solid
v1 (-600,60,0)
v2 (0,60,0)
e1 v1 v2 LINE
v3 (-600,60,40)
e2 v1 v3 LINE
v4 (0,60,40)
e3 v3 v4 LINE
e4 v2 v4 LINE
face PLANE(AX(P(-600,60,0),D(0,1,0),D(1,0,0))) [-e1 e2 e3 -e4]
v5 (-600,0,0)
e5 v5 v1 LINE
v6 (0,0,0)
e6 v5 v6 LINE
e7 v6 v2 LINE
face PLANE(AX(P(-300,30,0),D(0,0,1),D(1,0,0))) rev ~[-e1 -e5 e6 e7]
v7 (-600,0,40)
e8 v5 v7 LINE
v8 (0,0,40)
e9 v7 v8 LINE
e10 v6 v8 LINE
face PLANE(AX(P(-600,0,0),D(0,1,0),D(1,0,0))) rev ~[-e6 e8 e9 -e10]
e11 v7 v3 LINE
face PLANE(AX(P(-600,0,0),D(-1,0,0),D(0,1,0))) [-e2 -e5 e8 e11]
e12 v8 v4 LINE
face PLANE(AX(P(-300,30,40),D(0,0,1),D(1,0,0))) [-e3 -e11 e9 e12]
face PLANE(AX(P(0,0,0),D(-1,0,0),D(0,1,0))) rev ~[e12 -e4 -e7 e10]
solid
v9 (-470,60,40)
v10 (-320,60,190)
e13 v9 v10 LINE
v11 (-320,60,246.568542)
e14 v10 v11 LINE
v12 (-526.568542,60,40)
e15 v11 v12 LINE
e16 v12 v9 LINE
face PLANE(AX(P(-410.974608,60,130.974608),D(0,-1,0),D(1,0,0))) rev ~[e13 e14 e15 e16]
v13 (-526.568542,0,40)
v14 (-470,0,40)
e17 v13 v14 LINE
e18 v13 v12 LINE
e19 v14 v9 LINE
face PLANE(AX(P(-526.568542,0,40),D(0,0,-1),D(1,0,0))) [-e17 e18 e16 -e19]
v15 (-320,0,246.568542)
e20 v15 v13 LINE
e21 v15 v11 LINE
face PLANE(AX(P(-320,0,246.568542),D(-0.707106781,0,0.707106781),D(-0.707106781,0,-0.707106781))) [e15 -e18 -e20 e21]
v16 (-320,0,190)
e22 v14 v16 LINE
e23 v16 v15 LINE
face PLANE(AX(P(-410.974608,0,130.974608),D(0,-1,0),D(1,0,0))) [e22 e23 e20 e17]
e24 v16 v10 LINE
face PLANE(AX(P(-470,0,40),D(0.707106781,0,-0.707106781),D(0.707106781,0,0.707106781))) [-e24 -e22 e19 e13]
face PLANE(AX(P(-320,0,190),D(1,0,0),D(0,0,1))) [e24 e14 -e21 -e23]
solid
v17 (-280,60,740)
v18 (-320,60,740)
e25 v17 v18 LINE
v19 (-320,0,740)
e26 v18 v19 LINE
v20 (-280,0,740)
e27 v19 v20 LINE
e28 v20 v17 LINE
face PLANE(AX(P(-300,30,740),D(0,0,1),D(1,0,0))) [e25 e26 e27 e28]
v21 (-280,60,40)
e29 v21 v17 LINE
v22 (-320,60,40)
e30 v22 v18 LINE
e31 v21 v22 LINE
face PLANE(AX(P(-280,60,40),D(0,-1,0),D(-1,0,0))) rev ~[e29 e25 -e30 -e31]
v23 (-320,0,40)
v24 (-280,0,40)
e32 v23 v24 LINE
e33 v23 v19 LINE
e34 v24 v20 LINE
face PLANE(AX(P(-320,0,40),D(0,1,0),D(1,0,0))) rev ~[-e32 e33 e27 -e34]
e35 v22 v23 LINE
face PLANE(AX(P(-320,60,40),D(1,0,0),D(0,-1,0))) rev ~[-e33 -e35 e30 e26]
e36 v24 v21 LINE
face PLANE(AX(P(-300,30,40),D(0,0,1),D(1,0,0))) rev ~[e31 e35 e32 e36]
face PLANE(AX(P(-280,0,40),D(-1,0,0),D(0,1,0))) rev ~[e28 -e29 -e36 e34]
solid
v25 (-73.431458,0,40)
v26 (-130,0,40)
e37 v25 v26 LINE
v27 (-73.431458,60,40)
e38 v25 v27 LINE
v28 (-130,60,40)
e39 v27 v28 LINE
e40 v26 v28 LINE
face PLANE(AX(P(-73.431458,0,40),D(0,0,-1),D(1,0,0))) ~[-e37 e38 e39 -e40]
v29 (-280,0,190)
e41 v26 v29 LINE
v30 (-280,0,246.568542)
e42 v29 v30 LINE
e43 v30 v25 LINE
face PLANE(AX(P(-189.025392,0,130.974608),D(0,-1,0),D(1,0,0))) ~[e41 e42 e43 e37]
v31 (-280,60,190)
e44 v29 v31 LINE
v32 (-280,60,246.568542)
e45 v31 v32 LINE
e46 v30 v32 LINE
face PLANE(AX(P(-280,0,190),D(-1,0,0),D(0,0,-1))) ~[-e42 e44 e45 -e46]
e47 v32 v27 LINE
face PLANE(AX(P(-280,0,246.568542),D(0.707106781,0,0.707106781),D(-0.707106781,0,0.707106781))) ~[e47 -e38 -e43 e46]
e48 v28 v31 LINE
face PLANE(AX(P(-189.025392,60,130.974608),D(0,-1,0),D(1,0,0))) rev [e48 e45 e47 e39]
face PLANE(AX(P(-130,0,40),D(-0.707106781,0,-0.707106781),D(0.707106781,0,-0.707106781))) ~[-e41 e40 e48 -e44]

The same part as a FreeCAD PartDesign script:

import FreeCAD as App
import Part
import Sketcher
from FreeCAD import Vector

doc = App.newDocument("Part")
body = doc.addObject("PartDesign::Body", "Body")

# Sketch on XY plane
sketch1 = doc.addObject("Sketcher::SketchObject", "Sketch")
body.addObject(sketch1)
sketch1.AttachmentSupport = (doc.XY_Plane, [""])
sketch1.MapMode = "FlatFace"
sketch1.addGeometry(Part.LineSegment(Vector(-600, 60, 0), Vector(-600, 0, 0)), False)
sketch1.addGeometry(Part.LineSegment(Vector(-600, 0, 0), Vector(0, 0, 0)), False)
sketch1.addGeometry(Part.LineSegment(Vector(0, 0, 0), Vector(0, 60, 0)), False)
sketch1.addGeometry(Part.LineSegment(Vector(0, 60, 0), Vector(-600, 60, 0)), False)
sketch1.addConstraint(Sketcher.Constraint("Coincident", 0, 2, 1, 1))
sketch1.addConstraint(Sketcher.Constraint("Coincident", 1, 2, 2, 1))
sketch1.addConstraint(Sketcher.Constraint("Coincident", 2, 2, 3, 1))
sketch1.addConstraint(Sketcher.Constraint("Coincident", 3, 2, 0, 1))
sketch1.addConstraint(Sketcher.Constraint("Vertical", 0))
sketch1.addConstraint(Sketcher.Constraint("Horizontal", 1))
sketch1.addConstraint(Sketcher.Constraint("Vertical", 2))
sketch1.addConstraint(Sketcher.Constraint("Horizontal", 3))
sketch1.addConstraint(Sketcher.Constraint("Coincident", 1, 2, -1, 1))
sketch1.addConstraint(Sketcher.Constraint("DistanceX", 1, 1, 1, 2, 600.0))
sketch1.addConstraint(Sketcher.Constraint("DistanceY", 0, 2, 0, 1, 60.0))
pad1 = doc.addObject("PartDesign::Pad", "Pad")
body.addObject(pad1)
pad1.Profile = sketch1
pad1.Length = 40
body2 = doc.addObject("PartDesign::Body", "Body001")

# Sketch on XY plane
sketch2 = doc.addObject("Sketcher::SketchObject", "Sketch001")
body2.addObject(sketch2)
sketch2.AttachmentSupport = (doc.getObject("XY_Plane001"), [""])
sketch2.MapMode = "FlatFace"
sketch2.AttachmentOffset = App.Placement(Vector(0, 0, 40), App.Rotation())
sketch2.addGeometry(Part.LineSegment(Vector(-320, 0, 0), Vector(-280, 0, 0)), False)
sketch2.addGeometry(Part.LineSegment(Vector(-280, 0, 0), Vector(-280, 60, 0)), False)
sketch2.addGeometry(Part.LineSegment(Vector(-280, 60, 0), Vector(-320, 60, 0)), False)
sketch2.addGeometry(Part.LineSegment(Vector(-320, 60, 0), Vector(-320, 0, 0)), False)
sketch2.addConstraint(Sketcher.Constraint("Coincident", 0, 2, 1, 1))
sketch2.addConstraint(Sketcher.Constraint("Coincident", 1, 2, 2, 1))
sketch2.addConstraint(Sketcher.Constraint("Coincident", 2, 2, 3, 1))
sketch2.addConstraint(Sketcher.Constraint("Coincident", 3, 2, 0, 1))
sketch2.addConstraint(Sketcher.Constraint("Horizontal", 0))
sketch2.addConstraint(Sketcher.Constraint("Vertical", 1))
sketch2.addConstraint(Sketcher.Constraint("Horizontal", 2))
sketch2.addConstraint(Sketcher.Constraint("Vertical", 3))
sketch2.addConstraint(Sketcher.Constraint("PointOnObject", 0, 2, -1))
sketch2.addConstraint(Sketcher.Constraint("DistanceX", 0, 1, 0, 2, 40.0))
sketch2.addConstraint(Sketcher.Constraint("DistanceY", 1, 1, 1, 2, 60.0))
sketch2.addConstraint(Sketcher.Constraint("DistanceX", 0, 2, -1, 1, 280.0))
pad2 = doc.addObject("PartDesign::Pad", "Pad001")
body2.addObject(pad2)
pad2.Profile = sketch2
pad2.Length = 700
body3 = doc.addObject("PartDesign::Body", "Body002")

# Sketch on XZ plane
sketch3 = doc.addObject("Sketcher::SketchObject", "Sketch002")
body3.addObject(sketch3)
sketch3.AttachmentSupport = (doc.getObject("XZ_Plane002"), [""])
sketch3.MapMode = "FlatFace"
sketch3.addGeometry(Part.LineSegment(Vector(-470, 40, 0), Vector(-320, 190, 0)), False)
sketch3.addGeometry(Part.LineSegment(Vector(-320, 190, 0), Vector(-320, 247, 0)), False)
sketch3.addGeometry(Part.LineSegment(Vector(-320, 247, 0), Vector(-527, 40, 0)), False)
sketch3.addGeometry(Part.LineSegment(Vector(-527, 40, 0), Vector(-470, 40, 0)), False)
sketch3.addConstraint(Sketcher.Constraint("Coincident", 0, 2, 1, 1))
sketch3.addConstraint(Sketcher.Constraint("Coincident", 1, 2, 2, 1))
sketch3.addConstraint(Sketcher.Constraint("Coincident", 2, 2, 3, 1))
sketch3.addConstraint(Sketcher.Constraint("Coincident", 3, 2, 0, 1))
sketch3.addConstraint(Sketcher.Constraint("Vertical", 1))
sketch3.addConstraint(Sketcher.Constraint("Horizontal", 3))
sketch3.addConstraint(Sketcher.Constraint("Parallel", 0, 2))
sketch3.addConstraint(Sketcher.Constraint("Equal", 3, 1))
sketch3.addConstraint(Sketcher.Constraint("DistanceX", 0, 2, -1, 1, 320.0))
sketch3.addConstraint(Sketcher.Constraint("DistanceY", -1, 1, 0, 2, 190.0))
sketch3.addConstraint(Sketcher.Constraint("DistanceY", -1, 1, 2, 2, 40.0))
sketch3.addConstraint(Sketcher.Constraint("DistanceX", 3, 1, 3, 2, 56.568542))
pad3 = doc.addObject("PartDesign::Pad", "Pad002")
body3.addObject(pad3)
pad3.Profile = sketch3
pad3.Length = 60
pad3.Reversed = True
body4 = doc.addObject("PartDesign::Body", "Body003")
doc.recompute()

mirroring = doc.addObject("Part::Mirroring", "Mirroring")
mirroring.Source = body3
mirroring.Base = Vector(-300, 30, 390)
mirroring.Normal = Vector(-1, 0, 0)
body4.BaseFeature = mirroring
doc.recompute()
mirroring.Visibility = False

doc.recompute()
